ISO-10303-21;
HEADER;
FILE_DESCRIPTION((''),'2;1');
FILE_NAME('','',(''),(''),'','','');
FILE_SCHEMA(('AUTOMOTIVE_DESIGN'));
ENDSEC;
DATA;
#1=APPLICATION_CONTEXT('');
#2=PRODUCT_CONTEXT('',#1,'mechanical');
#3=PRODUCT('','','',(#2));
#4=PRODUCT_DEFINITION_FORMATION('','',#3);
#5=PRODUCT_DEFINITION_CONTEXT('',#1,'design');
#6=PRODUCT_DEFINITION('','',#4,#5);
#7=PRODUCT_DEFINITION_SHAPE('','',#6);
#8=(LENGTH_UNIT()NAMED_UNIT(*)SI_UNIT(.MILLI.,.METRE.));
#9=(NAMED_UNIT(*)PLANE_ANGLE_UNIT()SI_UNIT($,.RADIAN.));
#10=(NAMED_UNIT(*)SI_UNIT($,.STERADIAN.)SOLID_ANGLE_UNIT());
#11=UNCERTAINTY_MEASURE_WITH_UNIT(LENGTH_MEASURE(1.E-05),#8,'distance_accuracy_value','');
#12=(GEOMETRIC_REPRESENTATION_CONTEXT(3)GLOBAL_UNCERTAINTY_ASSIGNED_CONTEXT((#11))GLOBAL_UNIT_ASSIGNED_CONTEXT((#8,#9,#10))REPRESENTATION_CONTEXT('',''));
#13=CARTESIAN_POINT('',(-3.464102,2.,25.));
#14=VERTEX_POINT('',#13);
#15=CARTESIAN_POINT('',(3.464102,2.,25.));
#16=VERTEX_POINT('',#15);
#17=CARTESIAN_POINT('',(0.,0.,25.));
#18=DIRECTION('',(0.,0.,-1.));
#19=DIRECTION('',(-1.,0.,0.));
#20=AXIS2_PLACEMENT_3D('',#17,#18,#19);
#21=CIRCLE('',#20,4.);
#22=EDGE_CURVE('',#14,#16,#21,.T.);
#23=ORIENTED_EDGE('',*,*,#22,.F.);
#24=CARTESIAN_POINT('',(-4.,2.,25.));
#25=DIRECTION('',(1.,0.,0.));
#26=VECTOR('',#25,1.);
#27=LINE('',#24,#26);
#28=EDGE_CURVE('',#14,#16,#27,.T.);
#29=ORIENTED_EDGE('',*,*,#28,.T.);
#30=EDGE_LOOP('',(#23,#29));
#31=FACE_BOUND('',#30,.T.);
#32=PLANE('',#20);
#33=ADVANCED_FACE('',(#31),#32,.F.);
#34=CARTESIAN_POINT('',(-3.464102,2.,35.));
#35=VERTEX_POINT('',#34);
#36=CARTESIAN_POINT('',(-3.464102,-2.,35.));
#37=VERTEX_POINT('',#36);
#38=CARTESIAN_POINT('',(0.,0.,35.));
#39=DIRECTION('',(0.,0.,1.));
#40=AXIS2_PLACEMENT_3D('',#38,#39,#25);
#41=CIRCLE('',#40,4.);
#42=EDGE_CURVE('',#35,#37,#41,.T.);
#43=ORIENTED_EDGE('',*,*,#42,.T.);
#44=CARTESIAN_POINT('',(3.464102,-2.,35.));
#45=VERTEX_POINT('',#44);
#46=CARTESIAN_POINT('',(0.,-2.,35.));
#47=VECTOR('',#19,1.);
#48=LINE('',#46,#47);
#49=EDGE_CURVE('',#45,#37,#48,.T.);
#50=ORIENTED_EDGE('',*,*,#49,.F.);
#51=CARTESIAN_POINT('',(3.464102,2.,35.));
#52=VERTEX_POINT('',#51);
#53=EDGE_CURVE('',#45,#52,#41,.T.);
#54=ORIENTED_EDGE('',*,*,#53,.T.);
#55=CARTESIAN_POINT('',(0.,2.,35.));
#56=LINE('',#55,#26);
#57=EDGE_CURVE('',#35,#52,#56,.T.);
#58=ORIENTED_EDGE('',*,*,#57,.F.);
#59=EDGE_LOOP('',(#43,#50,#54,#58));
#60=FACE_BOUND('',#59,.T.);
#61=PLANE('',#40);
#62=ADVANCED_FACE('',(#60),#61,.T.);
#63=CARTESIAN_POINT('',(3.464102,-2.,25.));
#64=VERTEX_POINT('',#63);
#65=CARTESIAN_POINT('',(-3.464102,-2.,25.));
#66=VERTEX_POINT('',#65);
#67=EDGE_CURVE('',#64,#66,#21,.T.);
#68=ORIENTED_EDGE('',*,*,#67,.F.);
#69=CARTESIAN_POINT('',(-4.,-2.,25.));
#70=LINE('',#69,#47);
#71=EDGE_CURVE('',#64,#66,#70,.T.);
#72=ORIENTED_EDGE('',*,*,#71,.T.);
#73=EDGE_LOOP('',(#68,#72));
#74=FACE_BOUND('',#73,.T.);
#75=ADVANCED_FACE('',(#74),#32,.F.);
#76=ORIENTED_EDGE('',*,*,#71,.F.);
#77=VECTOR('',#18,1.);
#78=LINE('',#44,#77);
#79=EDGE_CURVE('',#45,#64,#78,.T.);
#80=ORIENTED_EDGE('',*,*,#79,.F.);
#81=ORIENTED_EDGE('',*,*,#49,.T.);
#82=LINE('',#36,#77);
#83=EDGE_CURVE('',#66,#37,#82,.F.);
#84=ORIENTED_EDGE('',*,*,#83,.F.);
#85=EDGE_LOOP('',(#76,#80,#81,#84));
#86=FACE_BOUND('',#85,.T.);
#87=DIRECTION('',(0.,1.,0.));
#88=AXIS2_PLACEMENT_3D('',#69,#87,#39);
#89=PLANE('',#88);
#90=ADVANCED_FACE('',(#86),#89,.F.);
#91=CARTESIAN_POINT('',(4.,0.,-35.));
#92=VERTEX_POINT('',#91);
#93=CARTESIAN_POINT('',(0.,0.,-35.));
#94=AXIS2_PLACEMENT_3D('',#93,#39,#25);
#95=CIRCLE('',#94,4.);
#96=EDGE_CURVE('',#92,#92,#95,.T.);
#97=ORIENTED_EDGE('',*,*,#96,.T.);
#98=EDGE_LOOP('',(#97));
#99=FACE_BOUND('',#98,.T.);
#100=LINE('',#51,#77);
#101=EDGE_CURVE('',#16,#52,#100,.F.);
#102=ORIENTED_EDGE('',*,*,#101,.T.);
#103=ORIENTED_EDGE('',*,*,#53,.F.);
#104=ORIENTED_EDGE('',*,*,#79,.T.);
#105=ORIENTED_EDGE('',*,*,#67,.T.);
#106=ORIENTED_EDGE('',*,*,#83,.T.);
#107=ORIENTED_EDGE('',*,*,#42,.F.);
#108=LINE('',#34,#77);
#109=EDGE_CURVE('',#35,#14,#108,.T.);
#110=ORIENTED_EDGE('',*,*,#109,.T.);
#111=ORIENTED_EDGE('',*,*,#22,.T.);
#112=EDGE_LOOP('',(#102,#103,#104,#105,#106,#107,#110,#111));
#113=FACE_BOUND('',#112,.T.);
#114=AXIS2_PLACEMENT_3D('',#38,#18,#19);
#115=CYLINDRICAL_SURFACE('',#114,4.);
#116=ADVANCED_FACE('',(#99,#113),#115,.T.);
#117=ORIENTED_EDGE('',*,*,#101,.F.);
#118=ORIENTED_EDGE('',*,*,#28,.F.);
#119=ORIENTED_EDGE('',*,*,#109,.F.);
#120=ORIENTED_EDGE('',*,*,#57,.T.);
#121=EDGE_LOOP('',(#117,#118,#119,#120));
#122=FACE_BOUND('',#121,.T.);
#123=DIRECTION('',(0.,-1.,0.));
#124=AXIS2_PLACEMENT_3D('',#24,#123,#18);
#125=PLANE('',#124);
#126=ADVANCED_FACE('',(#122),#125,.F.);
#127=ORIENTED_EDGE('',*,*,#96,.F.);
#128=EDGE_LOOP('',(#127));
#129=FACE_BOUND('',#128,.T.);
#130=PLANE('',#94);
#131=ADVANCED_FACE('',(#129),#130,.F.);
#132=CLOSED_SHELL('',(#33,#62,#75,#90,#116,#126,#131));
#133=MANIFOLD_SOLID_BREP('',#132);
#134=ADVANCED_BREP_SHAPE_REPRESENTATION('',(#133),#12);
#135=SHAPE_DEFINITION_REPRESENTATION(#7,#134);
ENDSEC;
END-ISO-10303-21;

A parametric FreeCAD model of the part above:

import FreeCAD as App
import Part
import Sketcher
Q = App.Units.Quantity


def add_polygon(sketch, points):
    """Adds a closed chain of lines whose ends are joined by coincident constraints."""
    first, n = sketch.GeometryCount, len(points)
    for a, b in zip(points, points[1:] + points[:1]):
        sketch.addGeometry(Part.LineSegment(App.Vector(*a, 0), App.Vector(*b, 0)), False)
    for i in range(n):
        sketch.addConstraint(Sketcher.Constraint("Coincident", first + i, 2, first + (i + 1) % n, 1))

doc = App.newDocument("Part")
body = doc.addObject("PartDesign::Body", "Body")

sketch1 = body.newObject("Sketcher::SketchObject", "Sketch")
sketch1.AttachmentSupport = (doc.getObject("XY_Plane"), [""])
sketch1.MapMode = "FlatFace"
sketch1.addGeometry(Part.Circle(App.Vector(0, 0, 0), App.Vector(0, 0, 1), 4), False)
sketch1.addConstraint([
    Sketcher.Constraint("Coincident", 0, 3, -1, 1),
    Sketcher.Constraint("Diameter", 0, Q("8 mm")),
])
pad1 = body.newObject("PartDesign::Pad", "Pad")
pad1.Profile = sketch1
pad1.Length = 70
pad1.Midplane = True

sketch2 = body.newObject("Sketcher::SketchObject", "Sketch001")
sketch2.AttachmentSupport = (doc.getObject("XY_Plane"), [""])
sketch2.MapMode = "FlatFace"
sketch2.AttachmentOffset = App.Placement(App.Vector(0, 0, 35), App.Rotation())
add_polygon(sketch2, [(4, -2), (-4, -2), (-4, -4.7), (4, -4.6)])
add_polygon(sketch2, [(-4, 4.5), (-4, 2), (4, 2), (4, 4.5)])
sketch2.addConstraint([
    Sketcher.Constraint("Horizontal", 0),
    Sketcher.Constraint("Vertical", 1),
    Sketcher.Constraint("Vertical", 3),
    Sketcher.Constraint("Vertical", 4),
    Sketcher.Constraint("Horizontal", 5),
    Sketcher.Constraint("Vertical", 6),
    Sketcher.Constraint("Horizontal", 7),
    Sketcher.Constraint("Symmetric", 3, 2, 4, 2, -1, 1),
    Sketcher.Constraint("Vertical", 1, 2, 4, 2),
    Sketcher.Constraint("Vertical", 3, 2, 5, 2),
    Sketcher.Constraint("DistanceX", 0, 2, 0, 1, Q("8 mm")),
    Sketcher.Constraint("DistanceY", 0, 2, -1, 1, Q("2 mm")),
    Sketcher.Constraint("DistanceY", 4, 2, 4, 1, Q("2.529951 mm")),
    Sketcher.Constraint("DistanceY", 1, 2, 1, 1, Q("2.711362 mm")),
    Sketcher.Constraint("DistanceY", 3, 1, 3, 2, Q("2.561964 mm")),
])
pocket1 = body.newObject("PartDesign::Pocket", "Pocket")
pocket1.Profile = sketch2
pocket1.Length = 10

doc.recompute()
